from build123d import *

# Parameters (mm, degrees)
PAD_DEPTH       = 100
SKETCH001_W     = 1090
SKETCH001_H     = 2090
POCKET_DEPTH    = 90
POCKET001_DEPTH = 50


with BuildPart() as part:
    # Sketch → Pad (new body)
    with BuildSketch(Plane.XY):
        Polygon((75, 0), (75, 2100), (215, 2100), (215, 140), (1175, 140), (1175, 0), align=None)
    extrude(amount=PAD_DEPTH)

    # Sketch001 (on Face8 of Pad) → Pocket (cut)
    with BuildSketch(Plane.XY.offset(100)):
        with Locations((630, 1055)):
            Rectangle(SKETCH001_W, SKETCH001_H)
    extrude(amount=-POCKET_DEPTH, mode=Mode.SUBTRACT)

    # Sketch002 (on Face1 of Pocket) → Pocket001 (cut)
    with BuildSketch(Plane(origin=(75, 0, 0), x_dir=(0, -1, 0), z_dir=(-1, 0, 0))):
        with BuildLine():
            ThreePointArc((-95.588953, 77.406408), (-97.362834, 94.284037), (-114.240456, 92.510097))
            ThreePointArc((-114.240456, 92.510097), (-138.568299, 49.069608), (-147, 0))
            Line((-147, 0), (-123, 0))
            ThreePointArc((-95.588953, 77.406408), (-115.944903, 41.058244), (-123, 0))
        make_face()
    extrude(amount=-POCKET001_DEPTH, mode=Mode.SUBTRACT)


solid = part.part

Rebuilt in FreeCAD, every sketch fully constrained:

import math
import FreeCAD as App
import Part
import Sketcher

doc = App.newDocument("Part")
params = doc.addObject("Spreadsheet::Sheet", "Params")
for row, (alias, value) in enumerate([
    ("sketch1_width", "1100 mm"),
    ("sketch1_width2", "960 mm"),
    ("sketch1_height", "2100 mm"),
    ("pad1_length", "100 mm"),
    ("sketch2_width", "1090 mm"),
    ("sketch2_height", "2090 mm"),
    ("pocket1_length", "90 mm"),
    ("sketch3_radius", "12 mm"),
    ("sketch3_radius2", "147 mm"),
    ("pocket2_length", "50 mm"),
], start=1):
    params.set(f"A{row}", alias)
    params.set(f"B{row}", "=" + value)
    params.setAlias(f"B{row}", alias)

body = doc.addObject("PartDesign::Body", "Body")

# Sketch on XY plane
sketch1 = body.newObject("Sketcher::SketchObject", "Sketch")
sketch1.AttachmentSupport = (doc.getObject("XY_Plane"), [""])
sketch1.MapMode = "FlatFace"
sketch1.addGeometry(Part.LineSegment(App.Vector(75, 2100, 0), App.Vector(75, 0, 0)), False)
sketch1.addGeometry(Part.LineSegment(App.Vector(75, 0, 0), App.Vector(1175, 0, 0)), False)
sketch1.addGeometry(Part.LineSegment(App.Vector(1175, 0, 0), App.Vector(1175, 140, 0)), False)
sketch1.addGeometry(Part.LineSegment(App.Vector(1175, 140, 0), App.Vector(215, 140, 0)), False)
sketch1.addGeometry(Part.LineSegment(App.Vector(215, 140, 0), App.Vector(215, 2100, 0)), False)
sketch1.addGeometry(Part.LineSegment(App.Vector(215, 2100, 0), App.Vector(75, 2100, 0)), False)
sketch1.addConstraint(Sketcher.Constraint("Coincident", 0, 2, 1, 1))
sketch1.addConstraint(Sketcher.Constraint("Coincident", 1, 2, 2, 1))
sketch1.addConstraint(Sketcher.Constraint("Coincident", 2, 2, 3, 1))
sketch1.addConstraint(Sketcher.Constraint("Coincident", 3, 2, 4, 1))
sketch1.addConstraint(Sketcher.Constraint("Coincident", 4, 2, 5, 1))
sketch1.addConstraint(Sketcher.Constraint("Coincident", 5, 2, 0, 1))
sketch1.addConstraint(Sketcher.Constraint("Vertical", 0))
sketch1.addConstraint(Sketcher.Constraint("Horizontal", 1))
sketch1.addConstraint(Sketcher.Constraint("Vertical", 2))
sketch1.addConstraint(Sketcher.Constraint("Horizontal", 3))
sketch1.addConstraint(Sketcher.Constraint("Vertical", 4))
sketch1.addConstraint(Sketcher.Constraint("Horizontal", 5))
sketch1.addConstraint(Sketcher.Constraint("PointOnObject", 0, 2, -1))
sketch1.addConstraint(Sketcher.Constraint("Equal", 5, 2))
sketch1.addConstraint(Sketcher.Constraint("DistanceX", 1, 1, 1, 2, 1100.0))
sketch1.addConstraint(Sketcher.Constraint("DistanceX", 3, 2, 3, 1, 960.0))
sketch1.addConstraint(Sketcher.Constraint("DistanceY", 0, 2, 0, 1, 2100.0))
sketch1.addConstraint(Sketcher.Constraint("DistanceX", -1, 1, 0, 2, 75.0))
sketch1.setExpression("Constraints[14]", "Params.sketch1_width")
sketch1.setExpression("Constraints[15]", "Params.sketch1_width2")
sketch1.setExpression("Constraints[16]", "Params.sketch1_height")
pad1 = body.newObject("PartDesign::Pad", "Pad")
pad1.Profile = sketch1
pad1.setExpression("Length", "Params.pad1_length")

# Sketch on XY plane
sketch2 = body.newObject("Sketcher::SketchObject", "Sketch001")
sketch2.AttachmentSupport = (doc.getObject("XY_Plane"), [""])
sketch2.MapMode = "FlatFace"
sketch2.AttachmentOffset = App.Placement(App.Vector(0, 0, 100), App.Rotation())
sketch2.addGeometry(Part.LineSegment(App.Vector(85, 2100, 0), App.Vector(85, 10, 0)), False)
sketch2.addGeometry(Part.LineSegment(App.Vector(85, 10, 0), App.Vector(1175, 10, 0)), False)
sketch2.addGeometry(Part.LineSegment(App.Vector(1175, 10, 0), App.Vector(1175, 2100, 0)), False)
sketch2.addGeometry(Part.LineSegment(App.Vector(1175, 2100, 0), App.Vector(85, 2100, 0)), False)
sketch2.addConstraint(Sketcher.Constraint("Coincident", 0, 2, 1, 1))
sketch2.addConstraint(Sketcher.Constraint("Coincident", 1, 2, 2, 1))
sketch2.addConstraint(Sketcher.Constraint("Coincident", 2, 2, 3, 1))
sketch2.addConstraint(Sketcher.Constraint("Coincident", 3, 2, 0, 1))
sketch2.addConstraint(Sketcher.Constraint("Vertical", 0))
sketch2.addConstraint(Sketcher.Constraint("Horizontal", 1))
sketch2.addConstraint(Sketcher.Constraint("Vertical", 2))
sketch2.addConstraint(Sketcher.Constraint("Horizontal", 3))
sketch2.addConstraint(Sketcher.Constraint("DistanceX", 1, 1, 1, 2, 1090.0))
sketch2.addConstraint(Sketcher.Constraint("DistanceY", 0, 2, 0, 1, 2090.0))
sketch2.addConstraint(Sketcher.Constraint("DistanceX", -1, 1, 0, 2, 85.0))
sketch2.addConstraint(Sketcher.Constraint("DistanceY", -1, 1, 0, 2, 10.0))
sketch2.setExpression("Constraints[8]", "Params.sketch2_width")
sketch2.setExpression("Constraints[9]", "Params.sketch2_height")
pocket1 = body.newObject("PartDesign::Pocket", "Pocket")
pocket1.Profile = sketch2
pocket1.setExpression("Length", "Params.pocket1_length")

# Sketch on YZ plane
sketch3 = body.newObject("Sketcher::SketchObject", "Sketch002")
sketch3.AttachmentSupport = (doc.getObject("YZ_Plane"), [""])
sketch3.MapMode = "FlatFace"
sketch3.AttachmentOffset = App.Placement(App.Vector(0, 0, 75), App.Rotation())
sketch3.addGeometry(Part.ArcOfCircle(Part.Circle(App.Vector(105, 85, 0), App.Vector(0, 0, 1), 12), math.radians(39), math.radians(219)), False)
sketch3.addGeometry(Part.ArcOfCircle(Part.Circle(App.Vector(0, 0, 0), App.Vector(0, 0, 1), 147), math.radians(0), math.radians(39)), False)
sketch3.addGeometry(Part.LineSegment(App.Vector(147, 0, 0), App.Vector(123, 0, 0)), False)
sketch3.addGeometry(Part.ArcOfCircle(Part.Circle(App.Vector(0, 0, 0), App.Vector(0, 0, 1), 123), math.radians(0), math.radians(39)), False)
sketch3.addConstraint(Sketcher.Constraint("Coincident", 0, 1, 1, 2))
sketch3.addConstraint(Sketcher.Constraint("Coincident", 1, 1, 2, 1))
sketch3.addConstraint(Sketcher.Constraint("Coincident", 2, 2, 3, 1))
sketch3.addConstraint(Sketcher.Constraint("Coincident", 3, 2, 0, 2))
sketch3.addConstraint(Sketcher.Constraint("Horizontal", 2))
sketch3.addConstraint(Sketcher.Constraint("Coincident", 1, 3, -1, 1))
sketch3.addConstraint(Sketcher.Constraint("Coincident", 3, 3, -1, 1))
sketch3.addConstraint(Sketcher.Constraint("PointOnObject", 1, 1, -1))
sketch3.addConstraint(Sketcher.Constraint("Radius", 0, 12.0))
sketch3.addConstraint(Sketcher.Constraint("Radius", 1, 147.0))
sketch3.addConstraint(Sketcher.Constraint("DistanceY", 3, 3, 0, 1, 92.510098))
sketch3.addConstraint(Sketcher.Constraint("DistanceX", -1, 1, 0, 3, 104.914678))
sketch3.addConstraint(Sketcher.Constraint("DistanceY", -1, 1, 3, 2, 77.406408))
sketch3.setExpression("Constraints[8]", "Params.sketch3_radius")
sketch3.setExpression("Constraints[9]", "Params.sketch3_radius2")
pocket2 = body.newObject("PartDesign::Pocket", "Pocket001")
pocket2.Profile = sketch3
pocket2.setExpression("Length", "Params.pocket2_length")
pocket2.Reversed = True

doc.recompute()
